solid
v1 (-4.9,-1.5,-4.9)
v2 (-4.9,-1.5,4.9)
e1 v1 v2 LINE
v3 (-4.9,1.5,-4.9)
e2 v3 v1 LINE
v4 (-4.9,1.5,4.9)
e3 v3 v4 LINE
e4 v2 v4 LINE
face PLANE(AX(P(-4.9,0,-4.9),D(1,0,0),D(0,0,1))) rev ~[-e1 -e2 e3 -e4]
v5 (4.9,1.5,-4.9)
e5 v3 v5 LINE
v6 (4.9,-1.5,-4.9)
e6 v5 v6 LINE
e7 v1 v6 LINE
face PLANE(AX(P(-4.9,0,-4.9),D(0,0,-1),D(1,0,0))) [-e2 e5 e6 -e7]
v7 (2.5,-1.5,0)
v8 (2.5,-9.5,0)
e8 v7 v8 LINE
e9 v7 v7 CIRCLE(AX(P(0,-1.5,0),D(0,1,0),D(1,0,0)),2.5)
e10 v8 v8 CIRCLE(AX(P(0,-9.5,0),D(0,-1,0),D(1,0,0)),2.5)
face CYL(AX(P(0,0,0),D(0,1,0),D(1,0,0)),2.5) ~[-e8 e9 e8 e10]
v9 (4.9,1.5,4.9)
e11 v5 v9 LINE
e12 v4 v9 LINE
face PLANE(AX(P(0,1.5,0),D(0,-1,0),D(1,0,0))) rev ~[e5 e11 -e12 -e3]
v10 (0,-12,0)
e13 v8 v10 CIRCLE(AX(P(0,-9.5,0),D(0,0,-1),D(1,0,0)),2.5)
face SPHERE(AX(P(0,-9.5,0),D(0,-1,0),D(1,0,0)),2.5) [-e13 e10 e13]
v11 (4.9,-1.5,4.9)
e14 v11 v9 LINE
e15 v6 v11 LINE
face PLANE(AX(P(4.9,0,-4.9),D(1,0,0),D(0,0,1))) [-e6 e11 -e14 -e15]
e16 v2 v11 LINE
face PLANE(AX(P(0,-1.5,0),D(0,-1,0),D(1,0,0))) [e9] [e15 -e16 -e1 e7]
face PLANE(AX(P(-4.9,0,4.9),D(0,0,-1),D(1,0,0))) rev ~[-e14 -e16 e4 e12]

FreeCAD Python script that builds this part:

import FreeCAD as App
import Part
import Sketcher
from FreeCAD import Vector


def edges_at(feature, points):
    """Names of the edges that pass closest to the given points."""
    edges = feature.Shape.Edges
    near = lambda p: min(range(len(edges)), key=lambda i: edges[i].distToShape(Part.Vertex(*p))[0])
    return sorted({f"Edge{near(p) + 1}" for p in points})


def add_polygon(sketch, points):
    """Adds a closed chain of lines whose ends are joined by coincident constraints."""
    first, n = sketch.GeometryCount, len(points)
    for a, b in zip(points, points[1:] + points[:1]):
        sketch.addGeometry(Part.LineSegment(App.Vector(*a, 0), App.Vector(*b, 0)), False)
    for i in range(n):
        sketch.addConstraint(Sketcher.Constraint("Coincident", first + i, 2, first + (i + 1) % n, 1))

doc = App.newDocument("Part")
params = doc.addObject("Spreadsheet::Sheet", "Params")
for row, (alias, value) in enumerate([
    ("sketch1_width", "9.8 mm"),
    ("pad1_length", "3 mm"),
    ("sketch2_diameter", "5 mm"),
    ("pad2_length", "12 mm"),
    ("fillet_radius", "2.5 mm"),
], start=1):
    params.set(f"A{row}", alias)
    params.set(f"B{row}", "=" + value)
    params.setAlias(f"B{row}", alias)

body = doc.addObject("PartDesign::Body", "Body")

# Sketch on XZ plane
sketch1 = doc.addObject("Sketcher::SketchObject", "Sketch")
body.addObject(sketch1)
sketch1.AttachmentSupport = (doc.XZ_Plane, [""])
sketch1.MapMode = "FlatFace"
add_polygon(sketch1, [(-5, 5), (-5, -5), (5, -5), (5, 5)])  # lines 0-3
sketch1.addConstraint([
    Sketcher.Constraint("Vertical", 0),
    Sketcher.Constraint("Horizontal", 1),
    Sketcher.Constraint("Vertical", 2),
    Sketcher.Constraint("Horizontal", 3),
    Sketcher.Constraint("Symmetric", 0, 2, 2, 2, -1, 1),
    Sketcher.Constraint("Equal", 3, 0),
    Sketcher.Constraint("DistanceX", 1, 1, 1, 2, 9.8),
])
sketch1.setExpression("Constraints[10]", "Params.sketch1_width")
pad1 = doc.addObject("PartDesign::Pad", "Pad")
body.addObject(pad1)
pad1.Profile = sketch1
pad1.setExpression("Length", "Params.pad1_length")
pad1.Midplane = True

# Sketch on XZ plane
sketch2 = doc.addObject("Sketcher::SketchObject", "Sketch001")
body.addObject(sketch2)
sketch2.AttachmentSupport = (doc.XZ_Plane, [""])
sketch2.MapMode = "FlatFace"
sketch2.addGeometry(Part.Circle(Vector(0, 0, 0), Vector(0, 0, 1), 2.5), False)
sketch2.addConstraint([
    Sketcher.Constraint("Coincident", 0, 3, -1, 1),
    Sketcher.Constraint("Diameter", 0, 5.0),
])
sketch2.setExpression("Constraints[1]", "Params.sketch2_diameter")
pad2 = doc.addObject("PartDesign::Pad", "Pad001")
body.addObject(pad2)
pad2.Profile = sketch2
pad2.setExpression("Length", "Params.pad2_length")
doc.recompute()

fillet = doc.addObject("PartDesign::Fillet", "Fillet")
body.addObject(fillet)
fillet.Base = (pad2, edges_at(pad2, [(-2.5, -12, 0)]))
fillet.setExpression("Radius", "Params.fillet_radius")

doc.recompute()
